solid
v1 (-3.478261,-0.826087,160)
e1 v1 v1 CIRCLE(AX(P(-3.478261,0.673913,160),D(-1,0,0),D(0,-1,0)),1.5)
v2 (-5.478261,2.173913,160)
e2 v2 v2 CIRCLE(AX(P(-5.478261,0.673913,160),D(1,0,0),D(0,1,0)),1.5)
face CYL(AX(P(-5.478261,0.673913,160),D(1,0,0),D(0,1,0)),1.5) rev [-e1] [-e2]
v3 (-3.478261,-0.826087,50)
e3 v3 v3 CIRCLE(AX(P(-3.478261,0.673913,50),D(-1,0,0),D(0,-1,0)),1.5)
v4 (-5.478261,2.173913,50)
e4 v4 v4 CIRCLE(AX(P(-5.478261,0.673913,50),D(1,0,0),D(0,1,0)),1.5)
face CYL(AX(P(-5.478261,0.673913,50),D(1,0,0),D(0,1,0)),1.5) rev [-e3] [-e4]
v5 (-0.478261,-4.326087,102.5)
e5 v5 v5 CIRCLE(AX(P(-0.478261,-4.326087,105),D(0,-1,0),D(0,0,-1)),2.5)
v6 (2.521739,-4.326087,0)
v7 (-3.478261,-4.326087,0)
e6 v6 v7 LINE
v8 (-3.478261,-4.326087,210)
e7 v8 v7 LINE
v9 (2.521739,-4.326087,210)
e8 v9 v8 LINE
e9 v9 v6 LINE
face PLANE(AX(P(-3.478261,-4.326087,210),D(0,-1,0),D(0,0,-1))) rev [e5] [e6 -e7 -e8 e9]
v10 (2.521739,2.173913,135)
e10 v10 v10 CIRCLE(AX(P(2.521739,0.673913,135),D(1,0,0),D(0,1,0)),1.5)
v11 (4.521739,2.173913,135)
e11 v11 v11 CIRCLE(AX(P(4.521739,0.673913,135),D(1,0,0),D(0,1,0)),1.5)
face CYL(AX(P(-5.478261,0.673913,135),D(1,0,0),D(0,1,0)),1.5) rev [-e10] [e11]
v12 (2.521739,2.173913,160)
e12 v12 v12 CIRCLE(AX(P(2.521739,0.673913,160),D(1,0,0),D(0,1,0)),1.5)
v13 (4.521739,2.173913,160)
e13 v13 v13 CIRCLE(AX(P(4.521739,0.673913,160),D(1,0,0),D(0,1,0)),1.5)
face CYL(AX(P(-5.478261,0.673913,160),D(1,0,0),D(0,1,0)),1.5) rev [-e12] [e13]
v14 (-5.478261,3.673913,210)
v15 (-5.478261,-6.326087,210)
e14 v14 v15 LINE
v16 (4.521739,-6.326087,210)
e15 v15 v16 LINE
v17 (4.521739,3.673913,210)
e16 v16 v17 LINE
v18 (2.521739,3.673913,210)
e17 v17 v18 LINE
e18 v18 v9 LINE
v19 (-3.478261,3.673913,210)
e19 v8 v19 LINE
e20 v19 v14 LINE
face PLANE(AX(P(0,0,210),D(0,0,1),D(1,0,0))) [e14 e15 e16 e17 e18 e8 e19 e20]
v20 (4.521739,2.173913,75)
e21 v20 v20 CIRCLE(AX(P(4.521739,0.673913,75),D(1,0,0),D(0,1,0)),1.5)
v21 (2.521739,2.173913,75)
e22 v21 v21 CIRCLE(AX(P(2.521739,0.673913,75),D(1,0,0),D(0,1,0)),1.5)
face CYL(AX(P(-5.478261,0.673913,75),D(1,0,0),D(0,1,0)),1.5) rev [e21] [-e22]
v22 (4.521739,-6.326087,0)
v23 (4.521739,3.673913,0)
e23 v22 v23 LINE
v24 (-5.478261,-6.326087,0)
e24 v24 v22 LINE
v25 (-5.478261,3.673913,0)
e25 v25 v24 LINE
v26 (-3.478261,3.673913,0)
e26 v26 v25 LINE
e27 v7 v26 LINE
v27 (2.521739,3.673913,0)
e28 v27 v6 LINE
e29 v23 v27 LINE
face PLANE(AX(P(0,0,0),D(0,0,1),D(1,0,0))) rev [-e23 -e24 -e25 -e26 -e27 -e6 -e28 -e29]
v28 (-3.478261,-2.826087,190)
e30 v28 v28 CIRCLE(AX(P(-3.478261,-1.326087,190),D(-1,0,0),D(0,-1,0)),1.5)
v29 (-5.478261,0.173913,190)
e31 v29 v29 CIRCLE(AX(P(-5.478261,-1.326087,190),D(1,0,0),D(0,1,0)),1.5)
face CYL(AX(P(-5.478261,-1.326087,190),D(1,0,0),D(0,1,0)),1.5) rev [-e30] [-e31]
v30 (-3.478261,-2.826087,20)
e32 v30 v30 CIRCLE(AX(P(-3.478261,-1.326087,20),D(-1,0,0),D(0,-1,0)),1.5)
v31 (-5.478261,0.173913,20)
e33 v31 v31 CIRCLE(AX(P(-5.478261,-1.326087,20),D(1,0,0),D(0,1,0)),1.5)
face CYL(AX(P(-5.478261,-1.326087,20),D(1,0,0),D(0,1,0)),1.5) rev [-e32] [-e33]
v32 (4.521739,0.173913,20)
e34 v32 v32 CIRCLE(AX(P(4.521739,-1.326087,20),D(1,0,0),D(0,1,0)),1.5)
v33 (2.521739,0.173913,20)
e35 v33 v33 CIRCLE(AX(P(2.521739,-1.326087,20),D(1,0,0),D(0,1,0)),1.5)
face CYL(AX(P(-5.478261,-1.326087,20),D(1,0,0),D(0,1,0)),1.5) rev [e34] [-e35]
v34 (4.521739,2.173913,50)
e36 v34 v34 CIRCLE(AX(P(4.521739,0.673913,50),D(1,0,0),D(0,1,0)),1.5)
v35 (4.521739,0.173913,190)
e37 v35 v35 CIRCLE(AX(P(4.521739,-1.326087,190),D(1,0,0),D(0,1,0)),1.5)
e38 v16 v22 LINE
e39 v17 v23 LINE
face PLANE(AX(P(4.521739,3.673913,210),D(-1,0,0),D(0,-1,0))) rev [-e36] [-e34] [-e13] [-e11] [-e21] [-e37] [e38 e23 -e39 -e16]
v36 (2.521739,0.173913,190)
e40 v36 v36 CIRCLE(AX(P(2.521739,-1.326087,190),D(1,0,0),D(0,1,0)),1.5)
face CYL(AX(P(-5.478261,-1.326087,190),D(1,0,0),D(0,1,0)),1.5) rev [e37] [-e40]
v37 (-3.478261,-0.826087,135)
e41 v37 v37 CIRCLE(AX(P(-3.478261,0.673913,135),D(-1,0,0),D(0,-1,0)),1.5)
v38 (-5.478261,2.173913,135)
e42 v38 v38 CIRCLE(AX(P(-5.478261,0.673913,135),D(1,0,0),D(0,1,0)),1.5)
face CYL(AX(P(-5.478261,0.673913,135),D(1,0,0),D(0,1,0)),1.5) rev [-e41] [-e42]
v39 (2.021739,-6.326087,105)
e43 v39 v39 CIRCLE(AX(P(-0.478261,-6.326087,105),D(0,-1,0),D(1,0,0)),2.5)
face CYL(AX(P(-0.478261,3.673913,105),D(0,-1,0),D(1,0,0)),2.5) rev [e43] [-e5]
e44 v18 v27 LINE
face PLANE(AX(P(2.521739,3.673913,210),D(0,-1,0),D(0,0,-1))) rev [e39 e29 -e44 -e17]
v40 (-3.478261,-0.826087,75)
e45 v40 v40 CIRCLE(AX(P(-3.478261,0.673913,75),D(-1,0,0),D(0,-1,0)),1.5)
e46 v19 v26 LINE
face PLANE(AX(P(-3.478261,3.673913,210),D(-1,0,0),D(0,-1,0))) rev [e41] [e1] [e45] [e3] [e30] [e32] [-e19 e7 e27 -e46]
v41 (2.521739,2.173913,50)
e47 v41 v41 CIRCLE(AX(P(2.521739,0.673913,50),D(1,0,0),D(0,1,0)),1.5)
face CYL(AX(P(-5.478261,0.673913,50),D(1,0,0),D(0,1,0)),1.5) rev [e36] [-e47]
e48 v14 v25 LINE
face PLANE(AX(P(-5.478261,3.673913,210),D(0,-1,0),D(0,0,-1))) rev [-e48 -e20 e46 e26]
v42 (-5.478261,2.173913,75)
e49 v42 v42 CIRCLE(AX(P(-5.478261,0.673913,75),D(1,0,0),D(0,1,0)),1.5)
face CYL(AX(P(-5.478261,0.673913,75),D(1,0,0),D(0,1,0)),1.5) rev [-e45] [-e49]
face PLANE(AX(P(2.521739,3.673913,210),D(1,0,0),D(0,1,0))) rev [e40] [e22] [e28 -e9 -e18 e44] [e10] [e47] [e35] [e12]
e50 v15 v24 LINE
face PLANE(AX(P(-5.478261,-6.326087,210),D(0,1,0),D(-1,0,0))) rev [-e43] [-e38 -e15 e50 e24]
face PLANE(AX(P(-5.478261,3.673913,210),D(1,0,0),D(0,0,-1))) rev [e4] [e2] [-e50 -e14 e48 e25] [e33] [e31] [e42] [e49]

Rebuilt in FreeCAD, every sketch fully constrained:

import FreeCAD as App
import Part
import Sketcher
from FreeCAD import Vector
Q = App.Units.Quantity


def add_polygon(sketch, points):
    """Adds a closed chain of lines whose ends are joined by coincident constraints."""
    first, n = sketch.GeometryCount, len(points)
    for a, b in zip(points, points[1:] + points[:1]):
        sketch.addGeometry(Part.LineSegment(App.Vector(*a, 0), App.Vector(*b, 0)), False)
    for i in range(n):
        sketch.addConstraint(Sketcher.Constraint("Coincident", first + i, 2, first + (i + 1) % n, 1))

doc = App.newDocument("Part")
body = doc.addObject("PartDesign::Body", "Body")

# Sketch on XY plane
sketch1 = body.newObject("Sketcher::SketchObject", "Sketch")
sketch1.AttachmentSupport = (doc.getObject("XY_Plane"), [""])
sketch1.MapMode = "FlatFace"
add_polygon(sketch1, [(4.5, 3.7), (2.5, 3.7), (2.5, -4.3), (-3.5, -4.3), (-3.5, 3.7), (-5.5, 3.7), (-5.5, -6.3), (4.5, -6.3)])  # lines 0-7
sketch1.addConstraint(Sketcher.Constraint("Horizontal", 0))
sketch1.addConstraint(Sketcher.Constraint("Vertical", 1))
sketch1.addConstraint(Sketcher.Constraint("Horizontal", 2))
sketch1.addConstraint(Sketcher.Constraint("Vertical", 3))
sketch1.addConstraint(Sketcher.Constraint("Horizontal", 4))
sketch1.addConstraint(Sketcher.Constraint("Vertical", 5))
sketch1.addConstraint(Sketcher.Constraint("Horizontal", 6))
sketch1.addConstraint(Sketcher.Constraint("Vertical", 7))
sketch1.addConstraint(Sketcher.Constraint("Horizontal", 0, 2, 3, 2))
sketch1.addConstraint(Sketcher.Constraint("Equal", 0, 4))
sketch1.addConstraint(Sketcher.Constraint("Equal", 6, 5))
sketch1.addConstraint(Sketcher.Constraint("DistanceX", 0, 2, 0, 1, Q("2 mm")))
sketch1.addConstraint(Sketcher.Constraint("DistanceX", 2, 2, 2, 1, Q("6 mm")))
sketch1.addConstraint(Sketcher.Constraint("DistanceY", 1, 2, 1, 1, Q("8 mm")))
sketch1.addConstraint(Sketcher.Constraint("DistanceX", -1, 1, 0, 2, Q("2.521739 mm")))
sketch1.addConstraint(Sketcher.Constraint("DistanceY", -1, 1, 0, 2, Q("3.673913 mm")))
pad1 = body.newObject("PartDesign::Pad", "Pad")
pad1.Profile = sketch1
pad1.Length = 210

# Sketch on YZ plane
sketch2 = body.newObject("Sketcher::SketchObject", "Sketch001")
sketch2.AttachmentSupport = (doc.getObject("YZ_Plane"), [""])
sketch2.MapMode = "FlatFace"
sketch2.AttachmentOffset = App.Placement(Vector(0, 0, 4.521739), App.Rotation())
sketch2.addGeometry(Part.Circle(Vector(0.7, 160, 0), Vector(0, 0, 1), 1.5), False)
sketch2.addGeometry(Part.Circle(Vector(0.7, 135, 0), Vector(0, 0, 1), 1.5), False)
sketch2.addGeometry(Part.Circle(Vector(0.7, 75, 0), Vector(0, 0, 1), 1.5), False)
sketch2.addGeometry(Part.Circle(Vector(0.7, 50, 0), Vector(0, 0, 1), 1.5), False)
sketch2.addConstraint(Sketcher.Constraint("Equal", 0, 1))
sketch2.addConstraint(Sketcher.Constraint("Equal", 1, 2))
sketch2.addConstraint(Sketcher.Constraint("Equal", 2, 3))
sketch2.addConstraint(Sketcher.Constraint("Vertical", 0, 3, 1, 3))
sketch2.addConstraint(Sketcher.Constraint("Vertical", 1, 3, 2, 3))
sketch2.addConstraint(Sketcher.Constraint("Vertical", 2, 3, 3, 3))
sketch2.addConstraint(Sketcher.Constraint("Diameter", 0, Q("3 mm")))
sketch2.addConstraint(Sketcher.Constraint("DistanceY", -1, 1, 0, 3, Q("160 mm")))
sketch2.addConstraint(Sketcher.Constraint("DistanceY", -1, 1, 1, 3, Q("135 mm")))
sketch2.addConstraint(Sketcher.Constraint("DistanceY", -1, 1, 2, 3, Q("75 mm")))
sketch2.addConstraint(Sketcher.Constraint("DistanceY", -1, 1, 3, 3, Q("50 mm")))
sketch2.addConstraint(Sketcher.Constraint("DistanceX", -1, 1, 0, 3, Q("0.673913 mm")))
pocket1 = body.newObject("PartDesign::Pocket", "Pocket")
pocket1.Profile = sketch2
pocket1.Length = 10

# Sketch on YZ plane
sketch3 = body.newObject("Sketcher::SketchObject", "Sketch002")
sketch3.AttachmentSupport = (doc.getObject("YZ_Plane"), [""])
sketch3.MapMode = "FlatFace"
sketch3.AttachmentOffset = App.Placement(Vector(0, 0, 4.521739), App.Rotation())
sketch3.addGeometry(Part.Circle(Vector(-1.3, 20, 0), Vector(0, 0, 1), 1.5), False)
sketch3.addGeometry(Part.Circle(Vector(-1.3, 190, 0), Vector(0, 0, 1), 1.5), False)
sketch3.addConstraint(Sketcher.Constraint("Equal", 0, 1))
sketch3.addConstraint(Sketcher.Constraint("Vertical", 0, 3, 1, 3))
sketch3.addConstraint(Sketcher.Constraint("Diameter", 0, Q("3 mm")))
sketch3.addConstraint(Sketcher.Constraint("DistanceY", -1, 1, 0, 3, Q("20 mm")))
sketch3.addConstraint(Sketcher.Constraint("DistanceY", -1, 1, 1, 3, Q("190 mm")))
sketch3.addConstraint(Sketcher.Constraint("DistanceX", 0, 3, -1, 1, Q("1.326087 mm")))
pocket2 = body.newObject("PartDesign::Pocket", "Pocket001")
pocket2.Profile = sketch3
pocket2.Length = 10

# Sketch on XZ plane
sketch4 = body.newObject("Sketcher::SketchObject", "Sketch003")
sketch4.AttachmentSupport = (doc.getObject("XZ_Plane"), [""])
sketch4.MapMode = "FlatFace"
sketch4.AttachmentOffset = App.Placement(Vector(0, 0, 6.326087), App.Rotation())
sketch4.addGeometry(Part.Circle(Vector(-0.5, 105, 0), Vector(0, 0, 1), 2.5), False)
sketch4.addConstraint(Sketcher.Constraint("Diameter", 0, Q("5 mm")))
sketch4.addConstraint(Sketcher.Constraint("DistanceY", -1, 1, 0, 3, Q("105 mm")))
sketch4.addConstraint(Sketcher.Constraint("DistanceX", 0, 3, -1, 1, Q("0.478261 mm")))
pocket3 = body.newObject("PartDesign::Pocket", "Pocket002")
pocket3.Profile = sketch4
pocket3.Length = 10

doc.recompute()
